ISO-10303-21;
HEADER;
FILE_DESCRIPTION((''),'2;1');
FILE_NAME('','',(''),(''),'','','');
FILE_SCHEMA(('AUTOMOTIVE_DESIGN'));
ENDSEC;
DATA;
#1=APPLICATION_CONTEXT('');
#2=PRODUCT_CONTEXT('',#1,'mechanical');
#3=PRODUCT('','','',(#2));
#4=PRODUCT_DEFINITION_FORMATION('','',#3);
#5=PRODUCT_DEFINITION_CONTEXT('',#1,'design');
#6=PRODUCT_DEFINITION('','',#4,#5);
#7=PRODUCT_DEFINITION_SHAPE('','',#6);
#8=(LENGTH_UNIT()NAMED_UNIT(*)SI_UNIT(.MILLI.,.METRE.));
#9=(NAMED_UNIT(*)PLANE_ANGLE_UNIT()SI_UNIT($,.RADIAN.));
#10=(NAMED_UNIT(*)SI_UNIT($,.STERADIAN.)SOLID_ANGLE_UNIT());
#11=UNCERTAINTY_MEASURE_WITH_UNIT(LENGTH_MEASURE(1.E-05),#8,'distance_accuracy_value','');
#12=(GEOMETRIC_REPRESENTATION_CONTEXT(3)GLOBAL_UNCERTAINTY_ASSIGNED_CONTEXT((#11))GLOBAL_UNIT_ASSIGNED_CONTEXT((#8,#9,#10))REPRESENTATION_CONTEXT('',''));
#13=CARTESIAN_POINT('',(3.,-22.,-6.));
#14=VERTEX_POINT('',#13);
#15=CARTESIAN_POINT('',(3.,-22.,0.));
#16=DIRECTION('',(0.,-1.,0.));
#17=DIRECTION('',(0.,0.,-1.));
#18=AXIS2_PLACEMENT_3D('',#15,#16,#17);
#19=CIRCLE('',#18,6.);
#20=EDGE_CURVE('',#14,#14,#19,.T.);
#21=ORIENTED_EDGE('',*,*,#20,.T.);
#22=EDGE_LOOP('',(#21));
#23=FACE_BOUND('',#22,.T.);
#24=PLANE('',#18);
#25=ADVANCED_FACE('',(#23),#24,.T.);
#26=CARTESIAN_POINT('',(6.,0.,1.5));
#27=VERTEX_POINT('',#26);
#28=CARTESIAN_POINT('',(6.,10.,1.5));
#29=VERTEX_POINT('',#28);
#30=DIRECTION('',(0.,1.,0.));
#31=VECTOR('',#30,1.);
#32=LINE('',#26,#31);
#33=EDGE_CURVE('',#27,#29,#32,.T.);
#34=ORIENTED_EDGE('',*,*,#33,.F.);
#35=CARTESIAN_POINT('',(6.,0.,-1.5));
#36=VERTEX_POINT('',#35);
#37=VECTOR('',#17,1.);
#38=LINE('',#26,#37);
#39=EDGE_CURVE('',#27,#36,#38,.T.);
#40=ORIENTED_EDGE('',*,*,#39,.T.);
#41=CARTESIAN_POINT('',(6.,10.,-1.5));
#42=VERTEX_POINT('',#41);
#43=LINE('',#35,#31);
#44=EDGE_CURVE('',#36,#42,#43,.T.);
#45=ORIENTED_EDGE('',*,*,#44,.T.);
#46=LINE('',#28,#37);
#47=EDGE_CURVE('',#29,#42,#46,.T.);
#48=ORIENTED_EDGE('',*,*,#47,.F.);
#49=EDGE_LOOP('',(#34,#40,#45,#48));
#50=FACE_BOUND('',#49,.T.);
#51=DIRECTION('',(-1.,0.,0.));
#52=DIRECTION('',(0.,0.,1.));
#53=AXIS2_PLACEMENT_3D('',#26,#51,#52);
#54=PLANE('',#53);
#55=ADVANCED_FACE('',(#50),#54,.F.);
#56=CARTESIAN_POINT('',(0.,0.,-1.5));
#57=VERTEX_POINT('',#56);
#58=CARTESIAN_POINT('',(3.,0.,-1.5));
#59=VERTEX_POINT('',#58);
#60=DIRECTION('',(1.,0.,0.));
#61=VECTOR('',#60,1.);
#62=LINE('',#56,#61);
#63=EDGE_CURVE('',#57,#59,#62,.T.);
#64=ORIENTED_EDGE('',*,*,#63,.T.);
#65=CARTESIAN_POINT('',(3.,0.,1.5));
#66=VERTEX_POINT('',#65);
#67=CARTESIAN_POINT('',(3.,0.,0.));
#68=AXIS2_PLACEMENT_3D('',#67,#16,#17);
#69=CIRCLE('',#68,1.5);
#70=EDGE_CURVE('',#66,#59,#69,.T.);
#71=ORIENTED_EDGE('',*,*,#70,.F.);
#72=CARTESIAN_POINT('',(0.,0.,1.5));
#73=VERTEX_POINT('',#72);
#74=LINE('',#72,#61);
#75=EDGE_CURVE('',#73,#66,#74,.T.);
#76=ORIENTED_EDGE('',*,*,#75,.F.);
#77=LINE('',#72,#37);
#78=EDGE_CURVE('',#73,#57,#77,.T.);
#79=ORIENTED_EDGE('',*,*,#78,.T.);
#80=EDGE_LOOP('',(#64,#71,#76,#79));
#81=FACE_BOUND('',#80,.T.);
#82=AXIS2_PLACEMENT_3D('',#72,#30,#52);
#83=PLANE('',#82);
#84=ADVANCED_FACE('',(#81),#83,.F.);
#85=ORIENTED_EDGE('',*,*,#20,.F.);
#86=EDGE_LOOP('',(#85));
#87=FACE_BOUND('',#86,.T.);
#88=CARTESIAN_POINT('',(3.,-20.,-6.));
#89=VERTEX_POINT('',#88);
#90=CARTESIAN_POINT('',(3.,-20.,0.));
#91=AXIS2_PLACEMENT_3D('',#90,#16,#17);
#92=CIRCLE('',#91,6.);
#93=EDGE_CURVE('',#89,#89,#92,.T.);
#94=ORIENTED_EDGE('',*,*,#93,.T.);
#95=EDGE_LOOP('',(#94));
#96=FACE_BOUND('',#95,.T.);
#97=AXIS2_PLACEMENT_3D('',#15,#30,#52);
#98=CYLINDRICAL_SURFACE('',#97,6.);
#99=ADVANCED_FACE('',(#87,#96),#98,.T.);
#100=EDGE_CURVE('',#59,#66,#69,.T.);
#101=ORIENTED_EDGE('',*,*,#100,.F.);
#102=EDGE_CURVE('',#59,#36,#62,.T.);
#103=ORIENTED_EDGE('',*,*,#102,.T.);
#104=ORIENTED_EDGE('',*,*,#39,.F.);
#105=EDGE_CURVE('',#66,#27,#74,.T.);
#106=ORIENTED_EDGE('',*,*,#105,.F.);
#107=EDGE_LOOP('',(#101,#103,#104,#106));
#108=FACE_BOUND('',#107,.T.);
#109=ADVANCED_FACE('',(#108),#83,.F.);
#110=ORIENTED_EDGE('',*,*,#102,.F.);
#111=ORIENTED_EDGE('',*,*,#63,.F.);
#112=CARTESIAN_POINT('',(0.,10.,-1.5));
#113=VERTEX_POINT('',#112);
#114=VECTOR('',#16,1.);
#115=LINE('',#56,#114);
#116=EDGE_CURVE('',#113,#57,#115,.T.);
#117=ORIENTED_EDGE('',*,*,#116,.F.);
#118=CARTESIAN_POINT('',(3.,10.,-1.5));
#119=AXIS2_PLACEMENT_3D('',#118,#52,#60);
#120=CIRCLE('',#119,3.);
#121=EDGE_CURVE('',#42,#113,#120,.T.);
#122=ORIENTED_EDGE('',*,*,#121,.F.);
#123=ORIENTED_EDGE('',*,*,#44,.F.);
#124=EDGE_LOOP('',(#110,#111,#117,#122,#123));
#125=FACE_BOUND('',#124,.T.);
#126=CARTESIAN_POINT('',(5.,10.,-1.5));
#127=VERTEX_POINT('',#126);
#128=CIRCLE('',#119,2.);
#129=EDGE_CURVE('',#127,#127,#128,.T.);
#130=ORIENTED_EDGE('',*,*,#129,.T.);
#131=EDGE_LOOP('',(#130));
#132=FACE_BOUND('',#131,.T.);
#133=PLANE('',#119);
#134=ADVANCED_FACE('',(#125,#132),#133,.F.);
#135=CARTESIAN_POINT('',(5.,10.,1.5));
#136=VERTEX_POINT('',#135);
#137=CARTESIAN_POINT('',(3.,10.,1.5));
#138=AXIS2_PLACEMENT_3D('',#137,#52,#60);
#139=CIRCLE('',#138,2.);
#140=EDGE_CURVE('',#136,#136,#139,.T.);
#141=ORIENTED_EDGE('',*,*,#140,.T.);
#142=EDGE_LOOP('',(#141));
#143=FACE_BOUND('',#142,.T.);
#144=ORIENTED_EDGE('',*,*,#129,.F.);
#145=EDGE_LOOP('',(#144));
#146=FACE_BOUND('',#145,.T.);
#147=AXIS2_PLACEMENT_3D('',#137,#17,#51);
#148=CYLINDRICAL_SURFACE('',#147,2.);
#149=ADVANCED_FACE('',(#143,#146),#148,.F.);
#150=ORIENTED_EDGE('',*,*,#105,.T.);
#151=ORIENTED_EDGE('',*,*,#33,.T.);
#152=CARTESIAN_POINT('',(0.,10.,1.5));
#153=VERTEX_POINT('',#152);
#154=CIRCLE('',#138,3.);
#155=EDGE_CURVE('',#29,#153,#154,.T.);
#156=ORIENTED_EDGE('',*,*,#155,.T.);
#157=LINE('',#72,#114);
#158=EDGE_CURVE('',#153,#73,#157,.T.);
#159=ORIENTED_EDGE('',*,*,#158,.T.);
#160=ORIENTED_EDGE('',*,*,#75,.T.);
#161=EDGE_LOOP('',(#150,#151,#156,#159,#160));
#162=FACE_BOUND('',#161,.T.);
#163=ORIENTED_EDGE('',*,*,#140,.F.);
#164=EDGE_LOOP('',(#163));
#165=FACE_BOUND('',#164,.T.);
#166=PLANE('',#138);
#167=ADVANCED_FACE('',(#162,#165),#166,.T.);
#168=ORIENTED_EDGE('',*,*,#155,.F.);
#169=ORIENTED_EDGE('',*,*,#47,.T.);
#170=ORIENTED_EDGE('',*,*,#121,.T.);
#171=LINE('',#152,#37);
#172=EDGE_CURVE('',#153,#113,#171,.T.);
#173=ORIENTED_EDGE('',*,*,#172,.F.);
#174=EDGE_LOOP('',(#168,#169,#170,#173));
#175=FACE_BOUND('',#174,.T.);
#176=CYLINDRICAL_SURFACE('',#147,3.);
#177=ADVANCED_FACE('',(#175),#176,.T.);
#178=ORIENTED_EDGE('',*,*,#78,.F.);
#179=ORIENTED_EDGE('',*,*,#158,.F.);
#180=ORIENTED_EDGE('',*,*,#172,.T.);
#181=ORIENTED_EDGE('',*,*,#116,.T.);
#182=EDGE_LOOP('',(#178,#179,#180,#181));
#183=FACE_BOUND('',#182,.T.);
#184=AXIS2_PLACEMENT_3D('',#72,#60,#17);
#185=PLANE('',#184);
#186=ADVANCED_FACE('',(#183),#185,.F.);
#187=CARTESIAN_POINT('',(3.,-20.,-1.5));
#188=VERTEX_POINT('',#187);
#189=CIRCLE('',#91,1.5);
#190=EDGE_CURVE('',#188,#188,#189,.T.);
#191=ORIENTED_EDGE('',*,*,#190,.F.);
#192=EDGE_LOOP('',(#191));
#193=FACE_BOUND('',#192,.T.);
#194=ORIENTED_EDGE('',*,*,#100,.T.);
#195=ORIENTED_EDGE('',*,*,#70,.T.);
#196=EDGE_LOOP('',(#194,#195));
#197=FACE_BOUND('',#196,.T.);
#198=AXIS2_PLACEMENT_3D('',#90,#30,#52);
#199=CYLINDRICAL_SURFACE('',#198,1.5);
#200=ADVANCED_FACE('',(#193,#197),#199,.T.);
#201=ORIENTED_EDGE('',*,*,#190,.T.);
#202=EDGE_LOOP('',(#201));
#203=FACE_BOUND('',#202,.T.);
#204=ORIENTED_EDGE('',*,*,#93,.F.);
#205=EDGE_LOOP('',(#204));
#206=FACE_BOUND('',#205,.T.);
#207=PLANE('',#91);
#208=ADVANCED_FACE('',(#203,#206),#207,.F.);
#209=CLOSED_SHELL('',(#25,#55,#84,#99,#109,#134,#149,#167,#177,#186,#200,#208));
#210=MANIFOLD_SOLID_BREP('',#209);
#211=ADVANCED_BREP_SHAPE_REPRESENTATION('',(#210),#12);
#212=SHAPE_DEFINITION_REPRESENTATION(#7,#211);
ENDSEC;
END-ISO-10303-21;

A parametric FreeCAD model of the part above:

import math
import FreeCAD as App
import Part
import Sketcher
from FreeCAD import Vector
Q = App.Units.Quantity

doc = App.newDocument("Part")
params = doc.addObject("Spreadsheet::Sheet", "Params")
for row, (alias, value) in enumerate([
    ("sketch1_diameter", "4 mm"),
    ("sketch1_radius", "3 mm"),
    ("sketch1_height", "10 mm"),
    ("pad1_length", "3 mm"),
    ("sketch2_diameter", "3 mm"),
    ("pad2_length", "20 mm"),
    ("sketch3_diameter", "12 mm"),
    ("pad3_length", "2 mm"),
], start=1):
    params.set(f"A{row}", alias)
    params.set(f"B{row}", "=" + value)
    params.setAlias(f"B{row}", alias)

body = doc.addObject("PartDesign::Body", "Body")

# Sketch on XY plane
sketch1 = body.newObject("Sketcher::SketchObject", "Sketch")
sketch1.AttachmentSupport = (doc.getObject("XY_Plane"), [""])
sketch1.MapMode = "FlatFace"
sketch1.addGeometry(Part.LineSegment(Vector(0, 0, 0), Vector(6, 0, 0)), False)
sketch1.addGeometry(Part.LineSegment(Vector(6, 0, 0), Vector(6, 10, 0)), False)
sketch1.addGeometry(Part.ArcOfCircle(Part.Circle(Vector(3, 10, 0), Vector(0, 0, 1), 3), math.radians(0), math.radians(180)), False)
sketch1.addGeometry(Part.LineSegment(Vector(0, 10, 0), Vector(0, 0, 0)), False)
sketch1.addGeometry(Part.Circle(Vector(3, 10, 0), Vector(0, 0, 1), 2), False)
sketch1.addConstraint(Sketcher.Constraint("Coincident", 0, 2, 1, 1))
sketch1.addConstraint(Sketcher.Constraint("Tangent", 1, 2, 2, 1))
sketch1.addConstraint(Sketcher.Constraint("Tangent", 2, 2, 3, 1))
sketch1.addConstraint(Sketcher.Constraint("Coincident", 3, 2, 0, 1))
sketch1.addConstraint(Sketcher.Constraint("Horizontal", 0))
sketch1.addConstraint(Sketcher.Constraint("Vertical", 1))
sketch1.addConstraint(Sketcher.Constraint("Vertical", 3))
sketch1.addConstraint(Sketcher.Constraint("Coincident", 3, 2, -1, 1))
sketch1.addConstraint(Sketcher.Constraint("Coincident", 4, 3, 2, 3))
sketch1.addConstraint(Sketcher.Constraint("Diameter", 4, Q("4 mm")))
sketch1.addConstraint(Sketcher.Constraint("Radius", 2, Q("3 mm")))
sketch1.addConstraint(Sketcher.Constraint("DistanceY", 1, 1, 1, 2, Q("10 mm")))
sketch1.setExpression("Constraints[9]", "Params.sketch1_diameter")
sketch1.setExpression("Constraints[10]", "Params.sketch1_radius")
sketch1.setExpression("Constraints[11]", "Params.sketch1_height")
pad1 = body.newObject("PartDesign::Pad", "Pad")
pad1.Profile = sketch1
pad1.setExpression("Length", "Params.pad1_length")
pad1.Midplane = True

# Sketch on XZ plane
sketch2 = body.newObject("Sketcher::SketchObject", "Sketch001")
sketch2.AttachmentSupport = (doc.getObject("XZ_Plane"), [""])
sketch2.MapMode = "FlatFace"
sketch2.addGeometry(Part.Circle(Vector(3, 0, 0), Vector(0, 0, 1), 1.5), False)
sketch2.addConstraint(Sketcher.Constraint("PointOnObject", 0, 3, -1))
sketch2.addConstraint(Sketcher.Constraint("Diameter", 0, Q("3 mm")))
sketch2.addConstraint(Sketcher.Constraint("DistanceX", -1, 1, 0, 3, Q("3 mm")))
sketch2.setExpression("Constraints[1]", "Params.sketch2_diameter")
pad2 = body.newObject("PartDesign::Pad", "Pad001")
pad2.Profile = sketch2
pad2.setExpression("Length", "Params.pad2_length")

# Sketch on XZ plane
sketch3 = body.newObject("Sketcher::SketchObject", "Sketch002")
sketch3.AttachmentSupport = (doc.getObject("XZ_Plane"), [""])
sketch3.MapMode = "FlatFace"
sketch3.AttachmentOffset = App.Placement(Vector(0, 0, 20), App.Rotation())
sketch3.addGeometry(Part.Circle(Vector(3, 0, 0), Vector(0, 0, 1), 6), False)
sketch3.addConstraint(Sketcher.Constraint("PointOnObject", 0, 3, -1))
sketch3.addConstraint(Sketcher.Constraint("Diameter", 0, Q("12 mm")))
sketch3.addConstraint(Sketcher.Constraint("DistanceX", -1, 1, 0, 3, Q("3 mm")))
sketch3.setExpression("Constraints[1]", "Params.sketch3_diameter")
pad3 = body.newObject("PartDesign::Pad", "Pad002")
pad3.Profile = sketch3
pad3.setExpression("Length", "Params.pad3_length")

doc.recompute()
